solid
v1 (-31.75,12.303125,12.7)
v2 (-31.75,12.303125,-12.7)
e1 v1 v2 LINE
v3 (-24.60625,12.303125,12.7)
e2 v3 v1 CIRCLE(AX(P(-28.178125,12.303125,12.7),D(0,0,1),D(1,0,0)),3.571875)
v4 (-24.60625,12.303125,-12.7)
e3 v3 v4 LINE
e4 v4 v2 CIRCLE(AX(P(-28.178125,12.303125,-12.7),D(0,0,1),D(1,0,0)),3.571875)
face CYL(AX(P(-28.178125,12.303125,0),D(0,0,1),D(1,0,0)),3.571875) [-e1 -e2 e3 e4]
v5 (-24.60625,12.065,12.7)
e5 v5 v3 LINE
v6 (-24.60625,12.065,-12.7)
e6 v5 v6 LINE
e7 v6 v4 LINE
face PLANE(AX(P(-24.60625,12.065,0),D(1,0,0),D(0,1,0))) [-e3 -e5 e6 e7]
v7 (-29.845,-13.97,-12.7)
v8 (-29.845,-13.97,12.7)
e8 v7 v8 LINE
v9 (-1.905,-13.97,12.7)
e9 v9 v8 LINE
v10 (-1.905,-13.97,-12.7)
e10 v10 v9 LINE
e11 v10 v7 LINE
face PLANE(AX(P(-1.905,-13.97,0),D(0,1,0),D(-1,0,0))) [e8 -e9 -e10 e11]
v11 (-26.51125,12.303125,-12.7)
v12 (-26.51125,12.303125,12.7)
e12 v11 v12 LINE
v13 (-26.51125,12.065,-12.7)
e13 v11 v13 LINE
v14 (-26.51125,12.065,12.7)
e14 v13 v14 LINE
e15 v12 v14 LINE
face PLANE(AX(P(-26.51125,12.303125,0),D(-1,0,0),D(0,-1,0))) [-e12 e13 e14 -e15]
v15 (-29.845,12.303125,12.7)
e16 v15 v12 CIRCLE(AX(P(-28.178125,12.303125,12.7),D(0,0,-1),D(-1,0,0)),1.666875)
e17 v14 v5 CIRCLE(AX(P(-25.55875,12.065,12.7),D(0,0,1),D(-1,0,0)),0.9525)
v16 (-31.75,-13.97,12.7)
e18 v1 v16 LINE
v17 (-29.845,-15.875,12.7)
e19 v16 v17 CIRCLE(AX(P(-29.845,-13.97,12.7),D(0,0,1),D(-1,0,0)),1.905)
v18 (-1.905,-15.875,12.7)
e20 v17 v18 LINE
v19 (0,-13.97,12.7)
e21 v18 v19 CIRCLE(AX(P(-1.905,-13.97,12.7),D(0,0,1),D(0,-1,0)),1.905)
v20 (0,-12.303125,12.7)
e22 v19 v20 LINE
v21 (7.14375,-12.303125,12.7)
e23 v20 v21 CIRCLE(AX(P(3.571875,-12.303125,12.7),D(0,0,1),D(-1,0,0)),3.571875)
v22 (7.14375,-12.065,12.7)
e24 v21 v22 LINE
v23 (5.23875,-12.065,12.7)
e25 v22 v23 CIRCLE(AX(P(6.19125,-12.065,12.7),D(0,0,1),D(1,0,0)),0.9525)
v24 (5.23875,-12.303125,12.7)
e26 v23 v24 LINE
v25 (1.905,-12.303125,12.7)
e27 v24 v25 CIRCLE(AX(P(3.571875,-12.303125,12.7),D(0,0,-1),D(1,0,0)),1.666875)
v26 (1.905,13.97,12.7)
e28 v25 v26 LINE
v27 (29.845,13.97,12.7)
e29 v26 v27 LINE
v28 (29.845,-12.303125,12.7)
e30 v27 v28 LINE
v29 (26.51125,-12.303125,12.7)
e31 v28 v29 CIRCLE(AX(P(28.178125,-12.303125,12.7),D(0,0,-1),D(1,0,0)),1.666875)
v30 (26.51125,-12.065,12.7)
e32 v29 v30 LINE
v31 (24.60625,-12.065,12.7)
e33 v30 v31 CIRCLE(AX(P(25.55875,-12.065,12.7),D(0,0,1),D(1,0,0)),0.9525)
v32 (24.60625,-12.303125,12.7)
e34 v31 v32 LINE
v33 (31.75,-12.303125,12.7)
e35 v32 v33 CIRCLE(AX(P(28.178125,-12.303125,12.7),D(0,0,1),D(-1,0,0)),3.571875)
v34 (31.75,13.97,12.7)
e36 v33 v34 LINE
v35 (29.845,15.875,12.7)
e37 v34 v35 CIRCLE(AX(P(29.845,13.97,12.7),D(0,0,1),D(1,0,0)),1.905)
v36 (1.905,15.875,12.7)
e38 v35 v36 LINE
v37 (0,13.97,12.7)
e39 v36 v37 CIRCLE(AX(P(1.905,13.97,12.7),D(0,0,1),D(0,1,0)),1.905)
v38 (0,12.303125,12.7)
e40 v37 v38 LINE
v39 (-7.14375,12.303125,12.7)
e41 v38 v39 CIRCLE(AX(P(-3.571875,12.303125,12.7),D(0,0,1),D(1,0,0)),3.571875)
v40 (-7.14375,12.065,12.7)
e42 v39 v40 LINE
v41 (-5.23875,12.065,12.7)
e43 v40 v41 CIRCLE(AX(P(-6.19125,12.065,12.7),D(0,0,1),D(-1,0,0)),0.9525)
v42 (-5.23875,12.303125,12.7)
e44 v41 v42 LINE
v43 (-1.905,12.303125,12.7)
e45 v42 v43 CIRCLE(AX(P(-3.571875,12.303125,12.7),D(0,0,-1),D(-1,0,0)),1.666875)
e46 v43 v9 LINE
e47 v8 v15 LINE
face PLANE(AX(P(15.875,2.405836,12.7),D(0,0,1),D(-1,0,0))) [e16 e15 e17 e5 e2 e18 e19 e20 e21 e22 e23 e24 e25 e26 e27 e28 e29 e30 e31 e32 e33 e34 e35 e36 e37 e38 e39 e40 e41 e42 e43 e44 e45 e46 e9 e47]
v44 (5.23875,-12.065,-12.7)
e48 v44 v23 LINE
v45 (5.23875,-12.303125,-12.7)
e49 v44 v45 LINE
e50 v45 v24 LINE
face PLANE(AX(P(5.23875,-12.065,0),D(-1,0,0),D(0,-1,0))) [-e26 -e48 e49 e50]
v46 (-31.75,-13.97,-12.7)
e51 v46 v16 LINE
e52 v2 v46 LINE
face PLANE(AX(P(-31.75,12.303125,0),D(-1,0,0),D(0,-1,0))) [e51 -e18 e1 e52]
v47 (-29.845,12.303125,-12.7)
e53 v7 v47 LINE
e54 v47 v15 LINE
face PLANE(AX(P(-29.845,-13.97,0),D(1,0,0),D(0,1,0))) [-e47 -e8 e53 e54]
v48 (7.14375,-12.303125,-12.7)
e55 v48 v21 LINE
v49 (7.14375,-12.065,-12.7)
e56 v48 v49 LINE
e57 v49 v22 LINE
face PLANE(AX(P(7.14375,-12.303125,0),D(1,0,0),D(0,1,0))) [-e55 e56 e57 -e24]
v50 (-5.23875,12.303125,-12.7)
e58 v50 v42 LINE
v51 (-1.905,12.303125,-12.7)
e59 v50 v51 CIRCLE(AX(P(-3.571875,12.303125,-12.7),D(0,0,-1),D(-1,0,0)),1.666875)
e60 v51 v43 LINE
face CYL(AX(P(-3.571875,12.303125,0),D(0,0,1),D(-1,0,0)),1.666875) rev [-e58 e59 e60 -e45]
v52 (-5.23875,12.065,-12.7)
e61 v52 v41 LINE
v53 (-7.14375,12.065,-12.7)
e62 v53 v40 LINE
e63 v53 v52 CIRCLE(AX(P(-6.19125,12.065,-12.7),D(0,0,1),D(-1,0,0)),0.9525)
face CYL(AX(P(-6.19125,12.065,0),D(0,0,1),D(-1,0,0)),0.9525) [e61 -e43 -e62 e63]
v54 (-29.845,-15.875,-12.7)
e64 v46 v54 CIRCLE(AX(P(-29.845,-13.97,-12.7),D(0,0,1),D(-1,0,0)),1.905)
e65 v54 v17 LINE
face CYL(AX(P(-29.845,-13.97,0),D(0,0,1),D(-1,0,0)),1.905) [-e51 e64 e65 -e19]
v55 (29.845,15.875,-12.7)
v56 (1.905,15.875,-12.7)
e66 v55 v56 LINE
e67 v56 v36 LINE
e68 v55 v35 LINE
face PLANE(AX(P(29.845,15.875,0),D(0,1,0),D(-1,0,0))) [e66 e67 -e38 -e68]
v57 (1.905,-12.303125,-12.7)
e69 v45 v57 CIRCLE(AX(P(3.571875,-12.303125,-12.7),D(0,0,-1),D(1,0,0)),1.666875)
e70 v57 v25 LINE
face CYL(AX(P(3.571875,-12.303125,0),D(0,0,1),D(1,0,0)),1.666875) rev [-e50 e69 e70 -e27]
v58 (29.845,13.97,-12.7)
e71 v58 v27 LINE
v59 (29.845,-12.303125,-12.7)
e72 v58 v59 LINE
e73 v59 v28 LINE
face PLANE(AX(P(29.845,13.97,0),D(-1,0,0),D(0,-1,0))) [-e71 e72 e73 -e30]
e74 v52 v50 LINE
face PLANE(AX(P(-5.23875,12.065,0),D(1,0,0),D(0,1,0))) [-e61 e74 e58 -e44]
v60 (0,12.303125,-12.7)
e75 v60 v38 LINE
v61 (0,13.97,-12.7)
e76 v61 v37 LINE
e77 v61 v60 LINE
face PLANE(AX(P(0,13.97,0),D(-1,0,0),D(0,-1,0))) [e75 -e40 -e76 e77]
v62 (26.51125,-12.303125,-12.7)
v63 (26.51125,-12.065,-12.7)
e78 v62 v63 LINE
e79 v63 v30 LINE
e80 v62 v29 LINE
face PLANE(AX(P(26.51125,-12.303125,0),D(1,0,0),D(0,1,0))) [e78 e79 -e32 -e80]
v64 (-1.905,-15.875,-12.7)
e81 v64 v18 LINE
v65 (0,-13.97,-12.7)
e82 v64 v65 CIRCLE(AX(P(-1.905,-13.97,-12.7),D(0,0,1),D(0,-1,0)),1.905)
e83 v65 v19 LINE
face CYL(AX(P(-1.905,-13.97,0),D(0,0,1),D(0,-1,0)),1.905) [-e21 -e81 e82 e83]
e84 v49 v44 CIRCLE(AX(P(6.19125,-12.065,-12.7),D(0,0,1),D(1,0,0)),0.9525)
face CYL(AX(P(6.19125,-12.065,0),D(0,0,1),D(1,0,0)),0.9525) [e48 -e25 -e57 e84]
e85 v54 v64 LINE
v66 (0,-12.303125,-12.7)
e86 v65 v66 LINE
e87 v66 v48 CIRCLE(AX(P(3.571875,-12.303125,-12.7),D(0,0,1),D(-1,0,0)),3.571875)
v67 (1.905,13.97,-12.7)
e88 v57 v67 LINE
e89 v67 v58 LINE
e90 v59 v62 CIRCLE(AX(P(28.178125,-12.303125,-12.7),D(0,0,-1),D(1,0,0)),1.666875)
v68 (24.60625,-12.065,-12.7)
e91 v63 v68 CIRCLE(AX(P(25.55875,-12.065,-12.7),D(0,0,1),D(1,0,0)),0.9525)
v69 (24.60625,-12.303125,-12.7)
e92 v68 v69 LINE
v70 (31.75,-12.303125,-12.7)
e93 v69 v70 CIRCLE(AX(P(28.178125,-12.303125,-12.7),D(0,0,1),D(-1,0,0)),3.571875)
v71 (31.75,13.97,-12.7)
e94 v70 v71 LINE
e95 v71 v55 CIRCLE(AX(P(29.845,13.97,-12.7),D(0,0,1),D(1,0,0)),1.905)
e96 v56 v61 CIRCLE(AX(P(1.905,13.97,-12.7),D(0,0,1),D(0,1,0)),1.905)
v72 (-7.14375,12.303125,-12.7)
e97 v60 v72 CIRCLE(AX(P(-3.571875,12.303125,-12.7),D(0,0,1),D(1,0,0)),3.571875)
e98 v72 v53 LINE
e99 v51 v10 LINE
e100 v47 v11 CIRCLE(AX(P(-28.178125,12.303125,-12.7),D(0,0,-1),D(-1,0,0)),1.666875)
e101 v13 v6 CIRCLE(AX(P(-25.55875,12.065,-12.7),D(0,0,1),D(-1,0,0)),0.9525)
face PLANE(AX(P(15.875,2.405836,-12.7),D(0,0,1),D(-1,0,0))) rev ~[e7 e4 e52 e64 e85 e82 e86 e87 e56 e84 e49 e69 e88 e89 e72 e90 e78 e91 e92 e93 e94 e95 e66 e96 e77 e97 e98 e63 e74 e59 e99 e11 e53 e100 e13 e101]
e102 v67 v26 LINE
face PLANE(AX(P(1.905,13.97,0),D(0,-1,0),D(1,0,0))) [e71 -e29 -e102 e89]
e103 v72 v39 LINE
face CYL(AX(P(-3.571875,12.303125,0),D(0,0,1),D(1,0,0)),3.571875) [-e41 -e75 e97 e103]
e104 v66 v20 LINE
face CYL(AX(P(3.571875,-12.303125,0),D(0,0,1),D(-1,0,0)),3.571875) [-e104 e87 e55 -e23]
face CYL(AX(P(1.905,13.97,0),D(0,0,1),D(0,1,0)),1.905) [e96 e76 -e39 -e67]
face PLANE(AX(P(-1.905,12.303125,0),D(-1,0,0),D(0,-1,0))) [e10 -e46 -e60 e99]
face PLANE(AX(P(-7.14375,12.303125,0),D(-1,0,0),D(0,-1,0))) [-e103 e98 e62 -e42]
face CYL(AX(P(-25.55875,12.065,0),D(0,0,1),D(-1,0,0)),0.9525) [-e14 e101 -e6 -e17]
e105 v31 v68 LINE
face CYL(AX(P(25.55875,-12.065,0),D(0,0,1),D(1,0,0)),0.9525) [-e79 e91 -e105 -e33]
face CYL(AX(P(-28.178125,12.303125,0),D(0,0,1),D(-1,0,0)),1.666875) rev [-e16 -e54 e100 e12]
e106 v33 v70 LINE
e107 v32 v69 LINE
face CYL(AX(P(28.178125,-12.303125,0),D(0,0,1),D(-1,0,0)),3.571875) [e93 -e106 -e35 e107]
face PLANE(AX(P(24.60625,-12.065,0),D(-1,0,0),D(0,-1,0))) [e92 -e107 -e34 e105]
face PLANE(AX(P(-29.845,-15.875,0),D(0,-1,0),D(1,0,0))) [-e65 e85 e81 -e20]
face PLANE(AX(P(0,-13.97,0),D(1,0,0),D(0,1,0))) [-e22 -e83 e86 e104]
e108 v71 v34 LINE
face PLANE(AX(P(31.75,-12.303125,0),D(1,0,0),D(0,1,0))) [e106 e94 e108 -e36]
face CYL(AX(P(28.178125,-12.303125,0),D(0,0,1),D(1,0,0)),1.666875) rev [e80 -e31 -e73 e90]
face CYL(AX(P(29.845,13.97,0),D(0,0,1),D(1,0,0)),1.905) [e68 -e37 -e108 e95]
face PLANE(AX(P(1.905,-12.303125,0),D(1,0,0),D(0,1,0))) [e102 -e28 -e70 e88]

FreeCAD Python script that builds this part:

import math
import FreeCAD as App
import Part
import Sketcher
Q = App.Units.Quantity

doc = App.newDocument("Part")
body = doc.addObject("PartDesign::Body", "Body")

# Sketch on XY plane
sketch1 = body.newObject("Sketcher::SketchObject", "Sketch")
sketch1.AttachmentSupport = (doc.getObject("XY_Plane"), [""])
sketch1.MapMode = "FlatFace"
sketch1.addGeometry([
    Part.LineSegment(App.Vector(-31.75, 12.3, 0), App.Vector(-31.75, -13.97, 0)),  # 0
    Part.ArcOfCircle(Part.Circle(App.Vector(-29.84, -13.97, 0), App.Vector(0, 0, 1), 1.91), math.radians(-180), math.radians(-90)),  # 1
    Part.LineSegment(App.Vector(-29.84, -15.88, 0), App.Vector(-1.91, -15.88, 0)),  # 2
    Part.ArcOfCircle(Part.Circle(App.Vector(-1.91, -13.97, 0), App.Vector(0, 0, 1), 1.91), math.radians(-90), math.radians(0)),  # 3
    Part.LineSegment(App.Vector(0, -13.97, 0), App.Vector(0, 12.3, 0)),  # 4
    Part.ArcOfCircle(Part.Circle(App.Vector(-3.57, 12.3, 0), App.Vector(0, 0, 1), 3.57), math.radians(0), math.radians(180)),  # 5
    Part.LineSegment(App.Vector(-7.14, 12.3, 0), App.Vector(-7.14, 12.06, 0)),  # 6
    Part.ArcOfCircle(Part.Circle(App.Vector(-6.19, 12.06, 0), App.Vector(0, 0, 1), 0.95), math.radians(180), math.radians(360)),  # 7
    Part.LineSegment(App.Vector(-5.24, 12.06, 0), App.Vector(-5.24, 12.3, 0)),  # 8
    Part.ArcOfCircle(Part.Circle(App.Vector(-3.57, 12.3, 0), App.Vector(0, 0, 1), 1.67), math.radians(0), math.radians(180)),  # 9
    Part.LineSegment(App.Vector(-1.91, 12.3, 0), App.Vector(-1.91, -13.97, 0)),  # 10
    Part.LineSegment(App.Vector(-1.91, -13.97, 0), App.Vector(-29.84, -13.97, 0)),  # 11
    Part.LineSegment(App.Vector(-29.84, -13.97, 0), App.Vector(-29.84, 12.3, 0)),  # 12
    Part.ArcOfCircle(Part.Circle(App.Vector(-28.18, 12.3, 0), App.Vector(0, 0, 1), 1.67), math.radians(0), math.radians(180)),  # 13
    Part.LineSegment(App.Vector(-26.51, 12.3, 0), App.Vector(-26.51, 12.06, 0)),  # 14
    Part.ArcOfCircle(Part.Circle(App.Vector(-25.56, 12.06, 0), App.Vector(0, 0, 1), 0.95), math.radians(180), math.radians(360)),  # 15
    Part.LineSegment(App.Vector(-24.61, 12.06, 0), App.Vector(-24.61, 12.3, 0)),  # 16
    Part.ArcOfCircle(Part.Circle(App.Vector(-28.18, 12.3, 0), App.Vector(0, 0, 1), 3.57), math.radians(0), math.radians(180)),  # 17
], False)
sketch1.addConstraint([
    Sketcher.Constraint("Tangent", 0, 2, 1, 1),
    Sketcher.Constraint("Tangent", 1, 2, 2, 1),
    Sketcher.Constraint("Tangent", 2, 2, 3, 1),
    Sketcher.Constraint("Tangent", 3, 2, 4, 1),
    Sketcher.Constraint("Tangent", 4, 2, 5, 1),
    Sketcher.Constraint("Tangent", 5, 2, 6, 1),
    Sketcher.Constraint("Tangent", 6, 2, 7, 1),
    Sketcher.Constraint("Tangent", 7, 2, 8, 1),
    Sketcher.Constraint("Tangent", 8, 2, 9, 2),
    Sketcher.Constraint("Tangent", 9, 1, 10, 1),
    Sketcher.Constraint("Coincident", 10, 2, 11, 1),
    Sketcher.Constraint("Coincident", 11, 2, 12, 1),
    Sketcher.Constraint("Tangent", 12, 2, 13, 2),
    Sketcher.Constraint("Tangent", 13, 1, 14, 1),
    Sketcher.Constraint("Tangent", 14, 2, 15, 1),
    Sketcher.Constraint("Tangent", 15, 2, 16, 1),
    Sketcher.Constraint("Tangent", 16, 2, 17, 1),
    Sketcher.Constraint("Tangent", 17, 2, 0, 1),
    Sketcher.Constraint("Vertical", 0),
    Sketcher.Constraint("Horizontal", 2),
    Sketcher.Constraint("Vertical", 4),
    Sketcher.Constraint("Vertical", 6),
    Sketcher.Constraint("Vertical", 8),
    Sketcher.Constraint("Vertical", 10),
    Sketcher.Constraint("Horizontal", 11),
    Sketcher.Constraint("Vertical", 12),
    Sketcher.Constraint("Vertical", 14),
    Sketcher.Constraint("Vertical", 16),
    Sketcher.Constraint("Coincident", 9, 3, 5, 3),
    Sketcher.Constraint("Coincident", 17, 3, 13, 3),
    Sketcher.Constraint("Coincident", 10, 2, 3, 3),
    Sketcher.Constraint("Coincident", 11, 2, 1, 3),
    Sketcher.Constraint("Equal", 9, 13),
    Sketcher.Constraint("PointOnObject", 3, 2, -2),
    Sketcher.Constraint("Horizontal", 9, 3, 13, 3),
    Sketcher.Constraint("Horizontal", 7, 3, 15, 3),
    Sketcher.Constraint("DistanceX", 2, 1, 2, 2, Q("1.1 in")),
    Sketcher.Constraint("Radius", 1, Q("0.075 in")),
    Sketcher.Constraint("Radius", 5, Q("0.140625 in")),
    Sketcher.Constraint("DistanceY", 1, 3, -1, 1, Q("0.55 in")),
    Sketcher.Constraint("DistanceY", -1, 1, 5, 3, Q("0.484375 in")),
    Sketcher.Constraint("DistanceY", -1, 1, 7, 3, Q("0.475 in")),
])
pad1 = body.newObject("PartDesign::Pad", "Pad")
pad1.Profile = sketch1
pad1.Length = Q("1 in")
pad1.Midplane = True
doc.recompute()

polarpattern = body.newObject("PartDesign::PolarPattern", "PolarPattern")
polarpattern.Originals = [pad1]
polarpattern.Axis = (doc.getObject("Z_Axis"), [""])
polarpattern.Angle = 360
polarpattern.Occurrences = 2
body.Tip = polarpattern

doc.recompute()
